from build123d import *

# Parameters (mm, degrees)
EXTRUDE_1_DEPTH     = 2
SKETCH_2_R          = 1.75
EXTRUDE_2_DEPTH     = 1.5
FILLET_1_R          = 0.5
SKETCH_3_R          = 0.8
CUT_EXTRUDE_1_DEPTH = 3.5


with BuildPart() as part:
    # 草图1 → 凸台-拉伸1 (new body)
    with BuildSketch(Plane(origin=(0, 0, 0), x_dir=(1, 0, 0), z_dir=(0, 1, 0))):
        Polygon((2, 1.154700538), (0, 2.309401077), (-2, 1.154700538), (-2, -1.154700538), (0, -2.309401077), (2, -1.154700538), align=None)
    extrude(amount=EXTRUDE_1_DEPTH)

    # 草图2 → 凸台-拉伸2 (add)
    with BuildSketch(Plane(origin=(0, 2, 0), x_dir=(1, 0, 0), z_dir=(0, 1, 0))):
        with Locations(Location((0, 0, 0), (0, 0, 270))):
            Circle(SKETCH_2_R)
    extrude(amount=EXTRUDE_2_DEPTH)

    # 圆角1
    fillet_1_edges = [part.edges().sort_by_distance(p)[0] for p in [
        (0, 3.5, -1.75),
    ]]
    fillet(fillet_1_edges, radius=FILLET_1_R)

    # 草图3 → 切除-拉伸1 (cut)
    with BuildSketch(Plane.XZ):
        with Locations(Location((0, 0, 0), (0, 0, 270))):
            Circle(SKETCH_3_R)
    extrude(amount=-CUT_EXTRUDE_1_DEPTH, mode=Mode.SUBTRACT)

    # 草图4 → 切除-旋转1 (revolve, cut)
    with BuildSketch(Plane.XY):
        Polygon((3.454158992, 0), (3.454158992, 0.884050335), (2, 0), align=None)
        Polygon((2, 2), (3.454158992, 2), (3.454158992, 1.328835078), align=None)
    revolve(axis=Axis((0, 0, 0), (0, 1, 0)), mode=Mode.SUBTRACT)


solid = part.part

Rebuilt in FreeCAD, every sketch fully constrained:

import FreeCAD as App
import Part
import Sketcher
Q = App.Units.Quantity


def edges_at(feature, points):
    """Names of the edges that pass closest to the given points."""
    edges = feature.Shape.Edges
    near = lambda p: min(range(len(edges)), key=lambda i: edges[i].distToShape(Part.Vertex(*p))[0])
    return sorted({f"Edge{near(p) + 1}" for p in points})


def add_polygon(sketch, points):
    """Adds a closed chain of lines whose ends are joined by coincident constraints."""
    first, n = sketch.GeometryCount, len(points)
    for a, b in zip(points, points[1:] + points[:1]):
        sketch.addGeometry(Part.LineSegment(App.Vector(*a, 0), App.Vector(*b, 0)), False)
    for i in range(n):
        sketch.addConstraint(Sketcher.Constraint("Coincident", first + i, 2, first + (i + 1) % n, 1))

doc = App.newDocument("Part")
body = doc.addObject("PartDesign::Body", "Body")

sketch1 = doc.addObject("Sketcher::SketchObject", "Sketch")
body.addObject(sketch1)
sketch1.AttachmentSupport = (doc.XZ_Plane, [""])
sketch1.MapMode = "FlatFace"
add_polygon(sketch1, [(2, -1.2), (0, -2.3), (-2, -1.2), (-2, 1.2), (0, 2.3), (2, 1.2)])
sketch1.addConstraint([
    Sketcher.Constraint("Vertical", 2),
    Sketcher.Constraint("Vertical", 5),
    Sketcher.Constraint("Symmetric", 0, 2, 3, 2, -1, 1),
    Sketcher.Constraint("Symmetric", 1, 2, 4, 2, -1, 1),
    Sketcher.Constraint("PointOnObject", 0, 2, -2),
    Sketcher.Constraint("Parallel", 0, 3),
    Sketcher.Constraint("Horizontal", 2, 2, 4, 2),
    Sketcher.Constraint("Angle", 0, Q("-150 deg")),
    Sketcher.Constraint("DistanceX", 1, 2, -1, 1, 2.0),
    Sketcher.Constraint("DistanceY", 2, 1, 2, 2, 2.309401),
])
pad1 = doc.addObject("PartDesign::Pad", "Pad")
body.addObject(pad1)
pad1.Profile = sketch1
pad1.Length = 2
pad1.Reversed = True

sketch2 = doc.addObject("Sketcher::SketchObject", "Sketch001")
body.addObject(sketch2)
sketch2.AttachmentSupport = (doc.XZ_Plane, [""])
sketch2.MapMode = "FlatFace"
sketch2.AttachmentOffset = App.Placement(App.Vector(0, 0, -2), App.Rotation())
sketch2.addGeometry(Part.Circle(App.Vector(0, 0, 0), App.Vector(0, 0, 1), 1.8), False)
sketch2.addConstraint([
    Sketcher.Constraint("Coincident", 0, 3, -1, 1),
    Sketcher.Constraint("Diameter", 0, 3.5),
])
pad2 = doc.addObject("PartDesign::Pad", "Pad001")
body.addObject(pad2)
pad2.Profile = sketch2
pad2.Length = 1.5
pad2.Reversed = True
doc.recompute()

fillet = doc.addObject("PartDesign::Fillet", "Fillet")
body.addObject(fillet)
fillet.Base = (pad2, edges_at(pad2, [(0, 3.5, -1.75)]))
fillet.Radius = 0.5

sketch3 = doc.addObject("Sketcher::SketchObject", "Sketch002")
body.addObject(sketch3)
sketch3.AttachmentSupport = (doc.XZ_Plane, [""])
sketch3.MapMode = "FlatFace"
sketch3.addGeometry(Part.Circle(App.Vector(0, 0, 0), App.Vector(0, 0, 1), 0.8), False)
sketch3.addConstraint([
    Sketcher.Constraint("Coincident", 0, 3, -1, 1),
    Sketcher.Constraint("Diameter", 0, 1.6),
])
pocket1 = doc.addObject("PartDesign::Pocket", "Pocket")
body.addObject(pocket1)
pocket1.Profile = sketch3
pocket1.Length = 3.5

sketch4 = doc.addObject("Sketcher::SketchObject", "Sketch003")
body.addObject(sketch4)
sketch4.AttachmentSupport = (doc.XY_Plane, [""])
sketch4.MapMode = "FlatFace"
add_polygon(sketch4, [(3.5, 0), (3.5, 0.9), (2, 0)])
add_polygon(sketch4, [(3.5, 2), (2, 2), (3.5, 1.3)])
sketch4.addConstraint([
    Sketcher.Constraint("Vertical", 0),
    Sketcher.Constraint("Horizontal", 2),
    Sketcher.Constraint("Horizontal", 3),
    Sketcher.Constraint("Vertical", 5),
    Sketcher.Constraint("PointOnObject", 1, 2, -1),
    Sketcher.Constraint("Vertical", 1, 2, 3, 2),
    Sketcher.Constraint("Vertical", 2, 2, 4, 2),
    Sketcher.Constraint("DistanceX", -1, 1, 1, 2, 2.0),
    Sketcher.Constraint("DistanceY", -1, 1, 3, 2, 2.0),
    Sketcher.Constraint("Distance", 1, 1.7018),
    Sketcher.Constraint("DistanceX", 2, 1, 2, 2, 1.454159),
    Sketcher.Constraint("DistanceY", 5, 1, 5, 2, 0.671165),
])
groove = doc.addObject("PartDesign::Groove", "Groove")
body.addObject(groove)
groove.Profile = sketch4
groove.ReferenceAxis = (sketch4, ["V_Axis"])
groove.Angle = 360

doc.recompute()
